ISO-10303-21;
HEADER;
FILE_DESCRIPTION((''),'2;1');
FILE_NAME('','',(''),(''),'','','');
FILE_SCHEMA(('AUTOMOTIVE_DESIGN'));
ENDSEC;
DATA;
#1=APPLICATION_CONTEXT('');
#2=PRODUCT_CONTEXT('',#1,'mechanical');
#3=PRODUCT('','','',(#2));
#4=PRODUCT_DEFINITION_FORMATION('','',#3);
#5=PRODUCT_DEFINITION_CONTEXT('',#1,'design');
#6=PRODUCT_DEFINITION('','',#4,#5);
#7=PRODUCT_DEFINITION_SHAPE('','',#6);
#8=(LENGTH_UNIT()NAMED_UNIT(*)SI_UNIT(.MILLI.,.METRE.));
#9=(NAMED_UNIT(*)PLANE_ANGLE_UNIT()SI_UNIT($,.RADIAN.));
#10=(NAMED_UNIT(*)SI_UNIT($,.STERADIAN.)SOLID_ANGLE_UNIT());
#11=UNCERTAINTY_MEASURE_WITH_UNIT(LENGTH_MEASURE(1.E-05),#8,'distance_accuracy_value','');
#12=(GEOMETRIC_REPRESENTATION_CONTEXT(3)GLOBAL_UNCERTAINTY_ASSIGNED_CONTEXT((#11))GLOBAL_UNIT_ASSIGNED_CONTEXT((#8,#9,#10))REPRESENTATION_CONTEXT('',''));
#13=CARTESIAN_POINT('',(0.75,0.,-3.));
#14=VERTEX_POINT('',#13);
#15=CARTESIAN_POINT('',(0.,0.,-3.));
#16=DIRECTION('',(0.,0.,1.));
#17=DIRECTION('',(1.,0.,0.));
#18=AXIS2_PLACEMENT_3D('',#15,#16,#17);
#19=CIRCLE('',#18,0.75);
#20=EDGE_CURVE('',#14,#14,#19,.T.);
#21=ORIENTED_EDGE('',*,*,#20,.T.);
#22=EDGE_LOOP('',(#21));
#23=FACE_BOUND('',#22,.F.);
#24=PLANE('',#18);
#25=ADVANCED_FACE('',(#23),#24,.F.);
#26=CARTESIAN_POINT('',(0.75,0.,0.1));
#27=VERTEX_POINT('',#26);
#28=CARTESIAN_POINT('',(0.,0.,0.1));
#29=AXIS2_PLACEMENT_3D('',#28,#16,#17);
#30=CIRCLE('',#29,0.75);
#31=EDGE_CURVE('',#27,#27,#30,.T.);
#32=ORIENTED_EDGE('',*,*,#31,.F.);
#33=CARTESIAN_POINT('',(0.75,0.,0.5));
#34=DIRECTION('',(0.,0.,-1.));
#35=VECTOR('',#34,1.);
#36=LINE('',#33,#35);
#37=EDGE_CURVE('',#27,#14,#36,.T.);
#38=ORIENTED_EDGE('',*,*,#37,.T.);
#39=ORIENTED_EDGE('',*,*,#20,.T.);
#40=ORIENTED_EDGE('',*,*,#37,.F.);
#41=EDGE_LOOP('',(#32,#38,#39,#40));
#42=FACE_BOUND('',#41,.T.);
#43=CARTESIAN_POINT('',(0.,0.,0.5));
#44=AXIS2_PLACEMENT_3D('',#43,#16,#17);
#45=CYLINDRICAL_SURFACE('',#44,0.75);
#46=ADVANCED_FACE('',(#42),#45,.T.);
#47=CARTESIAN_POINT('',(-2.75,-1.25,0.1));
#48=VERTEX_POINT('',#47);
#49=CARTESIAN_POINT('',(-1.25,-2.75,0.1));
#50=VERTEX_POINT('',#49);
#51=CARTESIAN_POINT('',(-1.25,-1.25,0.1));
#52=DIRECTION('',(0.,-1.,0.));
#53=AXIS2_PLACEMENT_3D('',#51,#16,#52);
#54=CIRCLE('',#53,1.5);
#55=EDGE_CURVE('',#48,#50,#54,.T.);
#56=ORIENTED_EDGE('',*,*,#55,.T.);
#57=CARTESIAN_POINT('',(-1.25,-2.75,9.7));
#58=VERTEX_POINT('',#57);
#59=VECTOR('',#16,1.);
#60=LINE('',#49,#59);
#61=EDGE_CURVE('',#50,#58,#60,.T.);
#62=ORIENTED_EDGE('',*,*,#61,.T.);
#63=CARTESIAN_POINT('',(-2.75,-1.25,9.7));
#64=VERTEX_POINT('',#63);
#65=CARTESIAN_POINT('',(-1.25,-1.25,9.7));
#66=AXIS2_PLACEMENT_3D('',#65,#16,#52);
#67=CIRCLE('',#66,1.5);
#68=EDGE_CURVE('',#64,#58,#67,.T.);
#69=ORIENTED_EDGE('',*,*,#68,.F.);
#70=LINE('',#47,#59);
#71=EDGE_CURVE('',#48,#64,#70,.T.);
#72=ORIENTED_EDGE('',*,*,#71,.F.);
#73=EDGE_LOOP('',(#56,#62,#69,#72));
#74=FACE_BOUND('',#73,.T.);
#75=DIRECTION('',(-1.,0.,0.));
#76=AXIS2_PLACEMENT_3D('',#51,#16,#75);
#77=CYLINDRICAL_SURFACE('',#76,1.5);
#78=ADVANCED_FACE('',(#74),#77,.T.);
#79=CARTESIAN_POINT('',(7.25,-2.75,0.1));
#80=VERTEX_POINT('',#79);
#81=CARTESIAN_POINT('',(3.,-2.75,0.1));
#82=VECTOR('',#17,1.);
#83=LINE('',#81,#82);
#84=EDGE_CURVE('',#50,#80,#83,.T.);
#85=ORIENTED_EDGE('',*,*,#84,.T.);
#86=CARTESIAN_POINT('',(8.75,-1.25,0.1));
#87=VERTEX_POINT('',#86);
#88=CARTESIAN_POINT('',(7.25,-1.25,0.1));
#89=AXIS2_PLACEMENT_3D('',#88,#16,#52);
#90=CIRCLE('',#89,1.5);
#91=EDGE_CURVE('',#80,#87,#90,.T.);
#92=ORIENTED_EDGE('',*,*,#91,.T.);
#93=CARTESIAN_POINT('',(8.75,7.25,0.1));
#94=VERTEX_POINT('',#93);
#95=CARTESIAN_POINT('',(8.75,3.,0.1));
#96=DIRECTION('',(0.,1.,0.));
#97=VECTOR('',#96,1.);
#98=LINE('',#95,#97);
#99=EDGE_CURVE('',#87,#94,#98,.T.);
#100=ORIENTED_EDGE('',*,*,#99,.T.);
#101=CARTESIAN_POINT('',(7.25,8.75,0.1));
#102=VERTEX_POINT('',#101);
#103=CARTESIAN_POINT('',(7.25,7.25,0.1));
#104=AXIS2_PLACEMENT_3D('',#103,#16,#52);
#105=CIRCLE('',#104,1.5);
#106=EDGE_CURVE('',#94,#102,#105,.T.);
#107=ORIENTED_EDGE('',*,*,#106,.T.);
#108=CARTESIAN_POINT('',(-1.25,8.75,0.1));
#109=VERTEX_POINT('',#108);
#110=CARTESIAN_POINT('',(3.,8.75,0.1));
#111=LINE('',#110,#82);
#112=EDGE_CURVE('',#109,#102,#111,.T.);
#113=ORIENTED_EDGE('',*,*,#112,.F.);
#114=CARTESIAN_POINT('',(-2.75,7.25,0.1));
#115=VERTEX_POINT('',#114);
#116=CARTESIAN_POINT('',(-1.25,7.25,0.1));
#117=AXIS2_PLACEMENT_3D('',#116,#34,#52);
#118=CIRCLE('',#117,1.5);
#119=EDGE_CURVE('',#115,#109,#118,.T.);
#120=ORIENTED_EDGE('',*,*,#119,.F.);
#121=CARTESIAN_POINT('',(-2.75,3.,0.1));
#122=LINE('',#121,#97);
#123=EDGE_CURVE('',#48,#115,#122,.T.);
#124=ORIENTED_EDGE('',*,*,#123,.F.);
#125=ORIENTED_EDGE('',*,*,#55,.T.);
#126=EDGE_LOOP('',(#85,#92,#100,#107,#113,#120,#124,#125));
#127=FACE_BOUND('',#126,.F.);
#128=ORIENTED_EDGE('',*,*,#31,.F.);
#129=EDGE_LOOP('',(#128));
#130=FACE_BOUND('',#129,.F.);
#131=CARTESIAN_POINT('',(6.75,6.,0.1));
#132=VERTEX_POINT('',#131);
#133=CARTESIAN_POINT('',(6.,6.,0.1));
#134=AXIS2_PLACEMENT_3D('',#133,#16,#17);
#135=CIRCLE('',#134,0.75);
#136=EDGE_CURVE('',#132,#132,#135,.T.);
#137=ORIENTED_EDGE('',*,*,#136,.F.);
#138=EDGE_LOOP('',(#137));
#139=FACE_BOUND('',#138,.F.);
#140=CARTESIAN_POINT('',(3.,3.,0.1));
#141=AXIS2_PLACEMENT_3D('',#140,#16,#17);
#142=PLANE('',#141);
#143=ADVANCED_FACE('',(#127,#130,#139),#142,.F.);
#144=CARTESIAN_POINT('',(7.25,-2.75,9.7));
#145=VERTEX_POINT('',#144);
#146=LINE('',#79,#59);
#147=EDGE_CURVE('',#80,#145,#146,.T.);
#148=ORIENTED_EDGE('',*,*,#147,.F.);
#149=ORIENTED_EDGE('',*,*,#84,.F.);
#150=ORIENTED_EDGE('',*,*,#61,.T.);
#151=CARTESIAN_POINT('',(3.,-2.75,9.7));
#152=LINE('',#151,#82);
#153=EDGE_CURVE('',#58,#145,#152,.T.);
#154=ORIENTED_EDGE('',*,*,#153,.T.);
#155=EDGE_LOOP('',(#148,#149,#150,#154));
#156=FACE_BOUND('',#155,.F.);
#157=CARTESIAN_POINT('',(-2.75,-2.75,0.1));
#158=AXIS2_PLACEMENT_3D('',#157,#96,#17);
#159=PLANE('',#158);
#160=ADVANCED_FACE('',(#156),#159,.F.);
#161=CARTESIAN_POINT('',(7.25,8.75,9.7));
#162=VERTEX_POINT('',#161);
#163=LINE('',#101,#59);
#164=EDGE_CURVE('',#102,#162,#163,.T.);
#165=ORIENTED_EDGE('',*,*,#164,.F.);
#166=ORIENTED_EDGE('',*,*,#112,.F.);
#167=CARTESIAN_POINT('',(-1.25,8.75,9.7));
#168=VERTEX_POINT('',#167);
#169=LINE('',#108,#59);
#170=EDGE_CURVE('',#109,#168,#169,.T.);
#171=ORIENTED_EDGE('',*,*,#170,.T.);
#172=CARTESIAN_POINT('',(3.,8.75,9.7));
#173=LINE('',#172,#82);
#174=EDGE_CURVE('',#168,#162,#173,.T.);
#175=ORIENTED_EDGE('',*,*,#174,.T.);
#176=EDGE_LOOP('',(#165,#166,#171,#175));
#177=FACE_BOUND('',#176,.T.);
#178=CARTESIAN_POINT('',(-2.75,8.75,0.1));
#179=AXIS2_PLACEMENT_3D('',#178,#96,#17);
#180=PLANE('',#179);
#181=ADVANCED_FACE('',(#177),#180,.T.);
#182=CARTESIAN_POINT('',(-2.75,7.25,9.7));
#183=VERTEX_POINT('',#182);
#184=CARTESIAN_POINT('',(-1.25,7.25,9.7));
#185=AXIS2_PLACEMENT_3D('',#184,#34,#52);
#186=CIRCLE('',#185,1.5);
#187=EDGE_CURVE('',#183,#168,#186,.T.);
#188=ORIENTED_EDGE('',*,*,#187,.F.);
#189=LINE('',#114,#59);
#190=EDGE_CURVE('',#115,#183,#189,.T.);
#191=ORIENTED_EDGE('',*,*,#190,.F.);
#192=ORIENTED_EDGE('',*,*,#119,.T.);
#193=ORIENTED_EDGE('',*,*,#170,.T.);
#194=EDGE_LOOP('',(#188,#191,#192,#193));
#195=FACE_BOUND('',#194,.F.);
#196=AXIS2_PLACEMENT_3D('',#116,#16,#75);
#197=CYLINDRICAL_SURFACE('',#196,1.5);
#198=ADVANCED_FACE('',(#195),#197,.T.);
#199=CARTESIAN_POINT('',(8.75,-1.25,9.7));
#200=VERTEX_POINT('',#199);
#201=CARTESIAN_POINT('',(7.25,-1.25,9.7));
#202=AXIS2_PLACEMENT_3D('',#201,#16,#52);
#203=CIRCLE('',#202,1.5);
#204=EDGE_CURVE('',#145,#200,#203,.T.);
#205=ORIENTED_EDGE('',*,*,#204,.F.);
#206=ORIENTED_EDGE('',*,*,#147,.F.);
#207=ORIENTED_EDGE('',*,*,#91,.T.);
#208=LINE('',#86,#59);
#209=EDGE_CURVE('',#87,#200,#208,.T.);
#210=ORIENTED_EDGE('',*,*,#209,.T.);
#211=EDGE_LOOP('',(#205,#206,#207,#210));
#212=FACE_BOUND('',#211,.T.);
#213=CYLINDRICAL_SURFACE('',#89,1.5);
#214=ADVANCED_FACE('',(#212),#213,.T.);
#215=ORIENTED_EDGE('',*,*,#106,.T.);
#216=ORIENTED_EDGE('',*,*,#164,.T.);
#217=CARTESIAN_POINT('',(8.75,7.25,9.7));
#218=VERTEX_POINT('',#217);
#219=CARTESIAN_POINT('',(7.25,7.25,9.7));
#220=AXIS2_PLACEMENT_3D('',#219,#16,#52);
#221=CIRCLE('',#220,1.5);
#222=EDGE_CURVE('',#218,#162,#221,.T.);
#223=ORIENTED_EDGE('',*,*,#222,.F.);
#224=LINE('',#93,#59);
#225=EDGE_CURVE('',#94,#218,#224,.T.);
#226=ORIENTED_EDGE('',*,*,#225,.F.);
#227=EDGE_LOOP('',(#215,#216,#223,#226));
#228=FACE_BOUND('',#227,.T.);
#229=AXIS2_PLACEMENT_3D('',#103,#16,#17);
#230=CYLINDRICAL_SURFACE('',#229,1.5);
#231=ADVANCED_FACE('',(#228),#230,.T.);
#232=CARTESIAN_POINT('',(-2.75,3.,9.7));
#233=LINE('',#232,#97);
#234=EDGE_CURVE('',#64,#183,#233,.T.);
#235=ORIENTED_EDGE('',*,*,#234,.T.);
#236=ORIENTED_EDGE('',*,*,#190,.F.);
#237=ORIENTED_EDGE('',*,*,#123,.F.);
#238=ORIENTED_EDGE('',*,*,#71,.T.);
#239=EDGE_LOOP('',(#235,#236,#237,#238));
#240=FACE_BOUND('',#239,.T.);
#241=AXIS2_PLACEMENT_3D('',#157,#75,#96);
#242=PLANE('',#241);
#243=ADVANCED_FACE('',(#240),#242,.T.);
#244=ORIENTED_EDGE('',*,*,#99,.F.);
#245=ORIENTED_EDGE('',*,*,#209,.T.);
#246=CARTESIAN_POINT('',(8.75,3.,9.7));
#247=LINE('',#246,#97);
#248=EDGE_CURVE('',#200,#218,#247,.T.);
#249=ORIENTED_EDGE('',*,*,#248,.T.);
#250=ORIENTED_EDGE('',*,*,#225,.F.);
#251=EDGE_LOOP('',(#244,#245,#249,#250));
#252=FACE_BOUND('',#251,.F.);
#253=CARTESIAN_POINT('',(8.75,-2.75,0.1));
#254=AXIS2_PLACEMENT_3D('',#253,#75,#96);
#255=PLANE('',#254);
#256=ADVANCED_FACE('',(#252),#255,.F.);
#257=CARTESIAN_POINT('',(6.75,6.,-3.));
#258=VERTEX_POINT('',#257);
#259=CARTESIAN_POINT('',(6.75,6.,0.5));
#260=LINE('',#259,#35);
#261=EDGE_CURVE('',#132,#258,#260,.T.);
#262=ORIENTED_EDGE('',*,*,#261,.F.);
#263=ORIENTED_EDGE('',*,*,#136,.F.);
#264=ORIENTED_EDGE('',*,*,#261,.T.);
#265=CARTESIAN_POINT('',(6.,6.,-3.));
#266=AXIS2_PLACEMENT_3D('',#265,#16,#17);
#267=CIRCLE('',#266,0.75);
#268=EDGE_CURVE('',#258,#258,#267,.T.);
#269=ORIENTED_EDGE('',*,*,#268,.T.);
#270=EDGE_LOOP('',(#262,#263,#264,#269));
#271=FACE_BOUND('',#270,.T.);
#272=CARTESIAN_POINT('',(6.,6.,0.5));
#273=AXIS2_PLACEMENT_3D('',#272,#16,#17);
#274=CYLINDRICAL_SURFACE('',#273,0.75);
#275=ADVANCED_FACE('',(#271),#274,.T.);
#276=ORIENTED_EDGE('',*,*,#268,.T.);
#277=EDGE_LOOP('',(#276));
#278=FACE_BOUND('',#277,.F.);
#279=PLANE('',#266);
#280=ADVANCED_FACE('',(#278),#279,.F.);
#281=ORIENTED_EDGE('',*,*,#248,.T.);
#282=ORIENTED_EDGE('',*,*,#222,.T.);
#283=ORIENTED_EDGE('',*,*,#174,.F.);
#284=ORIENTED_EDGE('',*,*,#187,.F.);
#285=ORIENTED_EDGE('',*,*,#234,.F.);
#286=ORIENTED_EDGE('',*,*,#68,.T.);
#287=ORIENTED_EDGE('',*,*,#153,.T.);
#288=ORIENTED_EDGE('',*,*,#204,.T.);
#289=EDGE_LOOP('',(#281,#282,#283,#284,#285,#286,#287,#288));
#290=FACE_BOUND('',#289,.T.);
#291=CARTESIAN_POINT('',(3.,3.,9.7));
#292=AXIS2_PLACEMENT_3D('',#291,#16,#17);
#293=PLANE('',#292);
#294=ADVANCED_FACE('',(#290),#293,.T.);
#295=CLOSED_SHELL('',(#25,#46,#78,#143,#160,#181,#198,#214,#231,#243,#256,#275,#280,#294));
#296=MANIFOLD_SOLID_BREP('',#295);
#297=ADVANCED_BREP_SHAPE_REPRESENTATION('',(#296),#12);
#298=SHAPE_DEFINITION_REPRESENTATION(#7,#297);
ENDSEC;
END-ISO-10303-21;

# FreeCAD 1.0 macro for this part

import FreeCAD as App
import Part
import Sketcher


def edges_at(feature, points):
    """Names of the edges that pass closest to the given points."""
    edges = feature.Shape.Edges
    near = lambda p: min(range(len(edges)), key=lambda i: edges[i].distToShape(Part.Vertex(*p))[0])
    return sorted({f"Edge{near(p) + 1}" for p in points})

doc = App.newDocument("Part")
body = doc.addObject("PartDesign::Body", "Body")

# Sketch on XY plane
sketch1 = doc.addObject("Sketcher::SketchObject", "Sketch")
body.addObject(sketch1)
sketch1.AttachmentSupport = (doc.XY_Plane, [""])
sketch1.MapMode = "FlatFace"
sketch1.AttachmentOffset = App.Placement(App.Vector(0, 0, 0.1), App.Rotation())
sketch1.addGeometry([
    Part.LineSegment(App.Vector(-3, 9, 0), App.Vector(-3, -3, 0)),
    Part.LineSegment(App.Vector(-3, -3, 0), App.Vector(9, -3, 0)),
    Part.LineSegment(App.Vector(9, -3, 0), App.Vector(9, 9, 0)),
    Part.LineSegment(App.Vector(9, 9, 0), App.Vector(-3, 9, 0)),
], False)
sketch1.addConstraint([
    Sketcher.Constraint("Coincident", 0, 2, 1, 1),
    Sketcher.Constraint("Coincident", 1, 2, 2, 1),
    Sketcher.Constraint("Coincident", 2, 2, 3, 1),
    Sketcher.Constraint("Coincident", 3, 2, 0, 1),
    Sketcher.Constraint("Vertical", 0),
    Sketcher.Constraint("Horizontal", 1),
    Sketcher.Constraint("Vertical", 2),
    Sketcher.Constraint("Horizontal", 3),
    Sketcher.Constraint("Equal", 3, 0),
    Sketcher.Constraint("DistanceX", 1, 1, 1, 2, 11.5),
    Sketcher.Constraint("DistanceX", 0, 2, -1, 1, 2.75),
    Sketcher.Constraint("DistanceY", 0, 2, -1, 1, 2.75),
])
pad1 = doc.addObject("PartDesign::Pad", "Pad")
body.addObject(pad1)
pad1.Profile = sketch1
pad1.Length = 9.6
doc.recompute()

fillet = doc.addObject("PartDesign::Fillet", "Fillet")
body.addObject(fillet)
fillet.Base = (pad1, edges_at(pad1, [
    (8.75, -2.75, 4.9),
    (8.75, 8.75, 4.9),
    (-2.75, -2.75, 4.9),
    (-2.75, 8.75, 4.9),
]))
fillet.Radius = 1.5
body2 = doc.addObject("PartDesign::Body", "Body001")
body2.AllowCompound = True

# Sketch on XY plane
sketch2 = doc.addObject("Sketcher::SketchObject", "Sketch001")
body2.addObject(sketch2)
sketch2.AttachmentSupport = (doc.getObject("XY_Plane001"), [""])
sketch2.MapMode = "FlatFace"
sketch2.AttachmentOffset = App.Placement(App.Vector(0, 0, 0.5), App.Rotation())
sketch2.addGeometry([
    Part.Circle(App.Vector(0, 0, 0), App.Vector(0, 0, 1), 0.8),
    Part.Circle(App.Vector(6, 6, 0), App.Vector(0, 0, 1), 0.8),
], False)
sketch2.addConstraint([
    Sketcher.Constraint("Coincident", 0, 3, -1, 1),
    Sketcher.Constraint("Equal", 0, 1),
    Sketcher.Constraint("Diameter", 0, 1.5),
    Sketcher.Constraint("DistanceX", -1, 1, 1, 3, 6.0),
    Sketcher.Constraint("DistanceY", -1, 1, 1, 3, 6.0),
])
pad2 = doc.addObject("PartDesign::Pad", "Pad001")
body2.addObject(pad2)
pad2.Profile = sketch2
pad2.Length = 3.5
pad2.Reversed = True
doc.recompute()

boolean = doc.addObject("PartDesign::Boolean", "Boolean")
body2.addObject(boolean)
boolean.Type = "Fuse"
boolean.addObjects([body])

doc.recompute()
